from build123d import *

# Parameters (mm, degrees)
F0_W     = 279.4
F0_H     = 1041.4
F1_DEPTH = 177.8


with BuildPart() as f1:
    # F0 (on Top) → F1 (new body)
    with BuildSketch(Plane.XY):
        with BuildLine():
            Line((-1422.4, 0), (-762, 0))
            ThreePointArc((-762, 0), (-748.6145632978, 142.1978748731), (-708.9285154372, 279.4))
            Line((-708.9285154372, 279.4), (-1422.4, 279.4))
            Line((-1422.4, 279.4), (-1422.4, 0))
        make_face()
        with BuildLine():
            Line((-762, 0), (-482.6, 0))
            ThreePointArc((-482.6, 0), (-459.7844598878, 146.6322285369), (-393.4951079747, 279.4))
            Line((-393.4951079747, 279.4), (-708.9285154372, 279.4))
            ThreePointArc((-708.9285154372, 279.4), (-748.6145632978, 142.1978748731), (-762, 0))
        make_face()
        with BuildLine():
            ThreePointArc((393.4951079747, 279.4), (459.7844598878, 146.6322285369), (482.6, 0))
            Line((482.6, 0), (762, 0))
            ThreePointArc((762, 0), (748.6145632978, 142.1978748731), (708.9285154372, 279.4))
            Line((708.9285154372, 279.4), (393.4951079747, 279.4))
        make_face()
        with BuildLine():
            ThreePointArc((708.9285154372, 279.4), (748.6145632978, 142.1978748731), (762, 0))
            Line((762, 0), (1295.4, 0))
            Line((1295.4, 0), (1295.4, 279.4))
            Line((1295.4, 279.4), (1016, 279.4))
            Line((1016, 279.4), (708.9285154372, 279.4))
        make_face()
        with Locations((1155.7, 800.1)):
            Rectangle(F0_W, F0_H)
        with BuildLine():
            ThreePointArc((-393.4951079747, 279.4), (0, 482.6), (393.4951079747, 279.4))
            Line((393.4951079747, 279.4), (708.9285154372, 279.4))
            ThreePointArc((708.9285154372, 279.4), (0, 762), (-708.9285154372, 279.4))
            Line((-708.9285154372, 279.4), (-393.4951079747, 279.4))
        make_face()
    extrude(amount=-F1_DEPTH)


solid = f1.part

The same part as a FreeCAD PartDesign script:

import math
import FreeCAD as App
import Part
import Sketcher
Q = App.Units.Quantity

doc = App.newDocument("Part")
body = doc.addObject("PartDesign::Body", "Body")

sketch1 = doc.addObject("Sketcher::SketchObject", "Sketch")
body.addObject(sketch1)
sketch1.AttachmentSupport = (doc.XY_Plane, [""])
sketch1.MapMode = "FlatFace"
sketch1.addGeometry(Part.LineSegment(App.Vector(-1422, 0, 0), App.Vector(-483, 0, 0)), False)
sketch1.addGeometry(Part.ArcOfCircle(Part.Circle(App.Vector(0, 0, 0), App.Vector(0, 0, 1), 483), math.radians(0), math.radians(180)), False)
sketch1.addGeometry(Part.LineSegment(App.Vector(483, 0, 0), App.Vector(1295, 0, 0)), False)
sketch1.addGeometry(Part.LineSegment(App.Vector(1295, 0, 0), App.Vector(1295, 1321, 0)), False)
sketch1.addGeometry(Part.LineSegment(App.Vector(1295, 1321, 0), App.Vector(1016, 1321, 0)), False)
sketch1.addGeometry(Part.LineSegment(App.Vector(1016, 1321, 0), App.Vector(1016, 279, 0)), False)
sketch1.addGeometry(Part.LineSegment(App.Vector(1016, 279, 0), App.Vector(709, 279, 0)), False)
sketch1.addGeometry(Part.ArcOfCircle(Part.Circle(App.Vector(0, 0, 0), App.Vector(0, 0, 1), 762), math.radians(22), math.radians(158)), False)
sketch1.addGeometry(Part.LineSegment(App.Vector(-709, 279, 0), App.Vector(-1422, 279, 0)), False)
sketch1.addGeometry(Part.LineSegment(App.Vector(-1422, 279, 0), App.Vector(-1422, 0, 0)), False)
sketch1.addConstraint(Sketcher.Constraint("Coincident", 0, 2, 1, 2))
sketch1.addConstraint(Sketcher.Constraint("Coincident", 1, 1, 2, 1))
sketch1.addConstraint(Sketcher.Constraint("Coincident", 2, 2, 3, 1))
sketch1.addConstraint(Sketcher.Constraint("Coincident", 3, 2, 4, 1))
sketch1.addConstraint(Sketcher.Constraint("Coincident", 4, 2, 5, 1))
sketch1.addConstraint(Sketcher.Constraint("Coincident", 5, 2, 6, 1))
sketch1.addConstraint(Sketcher.Constraint("Coincident", 6, 2, 7, 1))
sketch1.addConstraint(Sketcher.Constraint("Coincident", 7, 2, 8, 1))
sketch1.addConstraint(Sketcher.Constraint("Coincident", 8, 2, 9, 1))
sketch1.addConstraint(Sketcher.Constraint("Coincident", 9, 2, 0, 1))
sketch1.addConstraint(Sketcher.Constraint("Horizontal", 0))
sketch1.addConstraint(Sketcher.Constraint("Horizontal", 2))
sketch1.addConstraint(Sketcher.Constraint("Vertical", 3))
sketch1.addConstraint(Sketcher.Constraint("Horizontal", 4))
sketch1.addConstraint(Sketcher.Constraint("Vertical", 5))
sketch1.addConstraint(Sketcher.Constraint("Horizontal", 6))
sketch1.addConstraint(Sketcher.Constraint("Horizontal", 8))
sketch1.addConstraint(Sketcher.Constraint("Vertical", 9))
sketch1.addConstraint(Sketcher.Constraint("Coincident", 1, 3, -1, 1))
sketch1.addConstraint(Sketcher.Constraint("Coincident", 7, 3, -1, 1))
sketch1.addConstraint(Sketcher.Constraint("PointOnObject", 0, 2, -1))
sketch1.addConstraint(Sketcher.Constraint("PointOnObject", 2, 2, -1))
sketch1.addConstraint(Sketcher.Constraint("Equal", 4, 9))
sketch1.addConstraint(Sketcher.Constraint("Radius", 1, Q("19 in")))
sketch1.addConstraint(Sketcher.Constraint("Radius", 7, Q("30 in")))
sketch1.addConstraint(Sketcher.Constraint("DistanceX", 0, 1, 0, 2, Q("37 in")))
sketch1.addConstraint(Sketcher.Constraint("DistanceX", 2, 1, 2, 2, Q("32 in")))
sketch1.addConstraint(Sketcher.Constraint("DistanceX", 4, 2, 4, 1, Q("11 in")))
sketch1.addConstraint(Sketcher.Constraint("DistanceY", 3, 1, 3, 2, Q("52 in")))
sketch1.addConstraint(Sketcher.Constraint("DistanceY", 5, 2, 5, 1, Q("41 in")))
pad1 = doc.addObject("PartDesign::Pad", "Pad")
body.addObject(pad1)
pad1.Profile = sketch1
pad1.Length = Q("7 in")
pad1.Reversed = True

doc.recompute()
